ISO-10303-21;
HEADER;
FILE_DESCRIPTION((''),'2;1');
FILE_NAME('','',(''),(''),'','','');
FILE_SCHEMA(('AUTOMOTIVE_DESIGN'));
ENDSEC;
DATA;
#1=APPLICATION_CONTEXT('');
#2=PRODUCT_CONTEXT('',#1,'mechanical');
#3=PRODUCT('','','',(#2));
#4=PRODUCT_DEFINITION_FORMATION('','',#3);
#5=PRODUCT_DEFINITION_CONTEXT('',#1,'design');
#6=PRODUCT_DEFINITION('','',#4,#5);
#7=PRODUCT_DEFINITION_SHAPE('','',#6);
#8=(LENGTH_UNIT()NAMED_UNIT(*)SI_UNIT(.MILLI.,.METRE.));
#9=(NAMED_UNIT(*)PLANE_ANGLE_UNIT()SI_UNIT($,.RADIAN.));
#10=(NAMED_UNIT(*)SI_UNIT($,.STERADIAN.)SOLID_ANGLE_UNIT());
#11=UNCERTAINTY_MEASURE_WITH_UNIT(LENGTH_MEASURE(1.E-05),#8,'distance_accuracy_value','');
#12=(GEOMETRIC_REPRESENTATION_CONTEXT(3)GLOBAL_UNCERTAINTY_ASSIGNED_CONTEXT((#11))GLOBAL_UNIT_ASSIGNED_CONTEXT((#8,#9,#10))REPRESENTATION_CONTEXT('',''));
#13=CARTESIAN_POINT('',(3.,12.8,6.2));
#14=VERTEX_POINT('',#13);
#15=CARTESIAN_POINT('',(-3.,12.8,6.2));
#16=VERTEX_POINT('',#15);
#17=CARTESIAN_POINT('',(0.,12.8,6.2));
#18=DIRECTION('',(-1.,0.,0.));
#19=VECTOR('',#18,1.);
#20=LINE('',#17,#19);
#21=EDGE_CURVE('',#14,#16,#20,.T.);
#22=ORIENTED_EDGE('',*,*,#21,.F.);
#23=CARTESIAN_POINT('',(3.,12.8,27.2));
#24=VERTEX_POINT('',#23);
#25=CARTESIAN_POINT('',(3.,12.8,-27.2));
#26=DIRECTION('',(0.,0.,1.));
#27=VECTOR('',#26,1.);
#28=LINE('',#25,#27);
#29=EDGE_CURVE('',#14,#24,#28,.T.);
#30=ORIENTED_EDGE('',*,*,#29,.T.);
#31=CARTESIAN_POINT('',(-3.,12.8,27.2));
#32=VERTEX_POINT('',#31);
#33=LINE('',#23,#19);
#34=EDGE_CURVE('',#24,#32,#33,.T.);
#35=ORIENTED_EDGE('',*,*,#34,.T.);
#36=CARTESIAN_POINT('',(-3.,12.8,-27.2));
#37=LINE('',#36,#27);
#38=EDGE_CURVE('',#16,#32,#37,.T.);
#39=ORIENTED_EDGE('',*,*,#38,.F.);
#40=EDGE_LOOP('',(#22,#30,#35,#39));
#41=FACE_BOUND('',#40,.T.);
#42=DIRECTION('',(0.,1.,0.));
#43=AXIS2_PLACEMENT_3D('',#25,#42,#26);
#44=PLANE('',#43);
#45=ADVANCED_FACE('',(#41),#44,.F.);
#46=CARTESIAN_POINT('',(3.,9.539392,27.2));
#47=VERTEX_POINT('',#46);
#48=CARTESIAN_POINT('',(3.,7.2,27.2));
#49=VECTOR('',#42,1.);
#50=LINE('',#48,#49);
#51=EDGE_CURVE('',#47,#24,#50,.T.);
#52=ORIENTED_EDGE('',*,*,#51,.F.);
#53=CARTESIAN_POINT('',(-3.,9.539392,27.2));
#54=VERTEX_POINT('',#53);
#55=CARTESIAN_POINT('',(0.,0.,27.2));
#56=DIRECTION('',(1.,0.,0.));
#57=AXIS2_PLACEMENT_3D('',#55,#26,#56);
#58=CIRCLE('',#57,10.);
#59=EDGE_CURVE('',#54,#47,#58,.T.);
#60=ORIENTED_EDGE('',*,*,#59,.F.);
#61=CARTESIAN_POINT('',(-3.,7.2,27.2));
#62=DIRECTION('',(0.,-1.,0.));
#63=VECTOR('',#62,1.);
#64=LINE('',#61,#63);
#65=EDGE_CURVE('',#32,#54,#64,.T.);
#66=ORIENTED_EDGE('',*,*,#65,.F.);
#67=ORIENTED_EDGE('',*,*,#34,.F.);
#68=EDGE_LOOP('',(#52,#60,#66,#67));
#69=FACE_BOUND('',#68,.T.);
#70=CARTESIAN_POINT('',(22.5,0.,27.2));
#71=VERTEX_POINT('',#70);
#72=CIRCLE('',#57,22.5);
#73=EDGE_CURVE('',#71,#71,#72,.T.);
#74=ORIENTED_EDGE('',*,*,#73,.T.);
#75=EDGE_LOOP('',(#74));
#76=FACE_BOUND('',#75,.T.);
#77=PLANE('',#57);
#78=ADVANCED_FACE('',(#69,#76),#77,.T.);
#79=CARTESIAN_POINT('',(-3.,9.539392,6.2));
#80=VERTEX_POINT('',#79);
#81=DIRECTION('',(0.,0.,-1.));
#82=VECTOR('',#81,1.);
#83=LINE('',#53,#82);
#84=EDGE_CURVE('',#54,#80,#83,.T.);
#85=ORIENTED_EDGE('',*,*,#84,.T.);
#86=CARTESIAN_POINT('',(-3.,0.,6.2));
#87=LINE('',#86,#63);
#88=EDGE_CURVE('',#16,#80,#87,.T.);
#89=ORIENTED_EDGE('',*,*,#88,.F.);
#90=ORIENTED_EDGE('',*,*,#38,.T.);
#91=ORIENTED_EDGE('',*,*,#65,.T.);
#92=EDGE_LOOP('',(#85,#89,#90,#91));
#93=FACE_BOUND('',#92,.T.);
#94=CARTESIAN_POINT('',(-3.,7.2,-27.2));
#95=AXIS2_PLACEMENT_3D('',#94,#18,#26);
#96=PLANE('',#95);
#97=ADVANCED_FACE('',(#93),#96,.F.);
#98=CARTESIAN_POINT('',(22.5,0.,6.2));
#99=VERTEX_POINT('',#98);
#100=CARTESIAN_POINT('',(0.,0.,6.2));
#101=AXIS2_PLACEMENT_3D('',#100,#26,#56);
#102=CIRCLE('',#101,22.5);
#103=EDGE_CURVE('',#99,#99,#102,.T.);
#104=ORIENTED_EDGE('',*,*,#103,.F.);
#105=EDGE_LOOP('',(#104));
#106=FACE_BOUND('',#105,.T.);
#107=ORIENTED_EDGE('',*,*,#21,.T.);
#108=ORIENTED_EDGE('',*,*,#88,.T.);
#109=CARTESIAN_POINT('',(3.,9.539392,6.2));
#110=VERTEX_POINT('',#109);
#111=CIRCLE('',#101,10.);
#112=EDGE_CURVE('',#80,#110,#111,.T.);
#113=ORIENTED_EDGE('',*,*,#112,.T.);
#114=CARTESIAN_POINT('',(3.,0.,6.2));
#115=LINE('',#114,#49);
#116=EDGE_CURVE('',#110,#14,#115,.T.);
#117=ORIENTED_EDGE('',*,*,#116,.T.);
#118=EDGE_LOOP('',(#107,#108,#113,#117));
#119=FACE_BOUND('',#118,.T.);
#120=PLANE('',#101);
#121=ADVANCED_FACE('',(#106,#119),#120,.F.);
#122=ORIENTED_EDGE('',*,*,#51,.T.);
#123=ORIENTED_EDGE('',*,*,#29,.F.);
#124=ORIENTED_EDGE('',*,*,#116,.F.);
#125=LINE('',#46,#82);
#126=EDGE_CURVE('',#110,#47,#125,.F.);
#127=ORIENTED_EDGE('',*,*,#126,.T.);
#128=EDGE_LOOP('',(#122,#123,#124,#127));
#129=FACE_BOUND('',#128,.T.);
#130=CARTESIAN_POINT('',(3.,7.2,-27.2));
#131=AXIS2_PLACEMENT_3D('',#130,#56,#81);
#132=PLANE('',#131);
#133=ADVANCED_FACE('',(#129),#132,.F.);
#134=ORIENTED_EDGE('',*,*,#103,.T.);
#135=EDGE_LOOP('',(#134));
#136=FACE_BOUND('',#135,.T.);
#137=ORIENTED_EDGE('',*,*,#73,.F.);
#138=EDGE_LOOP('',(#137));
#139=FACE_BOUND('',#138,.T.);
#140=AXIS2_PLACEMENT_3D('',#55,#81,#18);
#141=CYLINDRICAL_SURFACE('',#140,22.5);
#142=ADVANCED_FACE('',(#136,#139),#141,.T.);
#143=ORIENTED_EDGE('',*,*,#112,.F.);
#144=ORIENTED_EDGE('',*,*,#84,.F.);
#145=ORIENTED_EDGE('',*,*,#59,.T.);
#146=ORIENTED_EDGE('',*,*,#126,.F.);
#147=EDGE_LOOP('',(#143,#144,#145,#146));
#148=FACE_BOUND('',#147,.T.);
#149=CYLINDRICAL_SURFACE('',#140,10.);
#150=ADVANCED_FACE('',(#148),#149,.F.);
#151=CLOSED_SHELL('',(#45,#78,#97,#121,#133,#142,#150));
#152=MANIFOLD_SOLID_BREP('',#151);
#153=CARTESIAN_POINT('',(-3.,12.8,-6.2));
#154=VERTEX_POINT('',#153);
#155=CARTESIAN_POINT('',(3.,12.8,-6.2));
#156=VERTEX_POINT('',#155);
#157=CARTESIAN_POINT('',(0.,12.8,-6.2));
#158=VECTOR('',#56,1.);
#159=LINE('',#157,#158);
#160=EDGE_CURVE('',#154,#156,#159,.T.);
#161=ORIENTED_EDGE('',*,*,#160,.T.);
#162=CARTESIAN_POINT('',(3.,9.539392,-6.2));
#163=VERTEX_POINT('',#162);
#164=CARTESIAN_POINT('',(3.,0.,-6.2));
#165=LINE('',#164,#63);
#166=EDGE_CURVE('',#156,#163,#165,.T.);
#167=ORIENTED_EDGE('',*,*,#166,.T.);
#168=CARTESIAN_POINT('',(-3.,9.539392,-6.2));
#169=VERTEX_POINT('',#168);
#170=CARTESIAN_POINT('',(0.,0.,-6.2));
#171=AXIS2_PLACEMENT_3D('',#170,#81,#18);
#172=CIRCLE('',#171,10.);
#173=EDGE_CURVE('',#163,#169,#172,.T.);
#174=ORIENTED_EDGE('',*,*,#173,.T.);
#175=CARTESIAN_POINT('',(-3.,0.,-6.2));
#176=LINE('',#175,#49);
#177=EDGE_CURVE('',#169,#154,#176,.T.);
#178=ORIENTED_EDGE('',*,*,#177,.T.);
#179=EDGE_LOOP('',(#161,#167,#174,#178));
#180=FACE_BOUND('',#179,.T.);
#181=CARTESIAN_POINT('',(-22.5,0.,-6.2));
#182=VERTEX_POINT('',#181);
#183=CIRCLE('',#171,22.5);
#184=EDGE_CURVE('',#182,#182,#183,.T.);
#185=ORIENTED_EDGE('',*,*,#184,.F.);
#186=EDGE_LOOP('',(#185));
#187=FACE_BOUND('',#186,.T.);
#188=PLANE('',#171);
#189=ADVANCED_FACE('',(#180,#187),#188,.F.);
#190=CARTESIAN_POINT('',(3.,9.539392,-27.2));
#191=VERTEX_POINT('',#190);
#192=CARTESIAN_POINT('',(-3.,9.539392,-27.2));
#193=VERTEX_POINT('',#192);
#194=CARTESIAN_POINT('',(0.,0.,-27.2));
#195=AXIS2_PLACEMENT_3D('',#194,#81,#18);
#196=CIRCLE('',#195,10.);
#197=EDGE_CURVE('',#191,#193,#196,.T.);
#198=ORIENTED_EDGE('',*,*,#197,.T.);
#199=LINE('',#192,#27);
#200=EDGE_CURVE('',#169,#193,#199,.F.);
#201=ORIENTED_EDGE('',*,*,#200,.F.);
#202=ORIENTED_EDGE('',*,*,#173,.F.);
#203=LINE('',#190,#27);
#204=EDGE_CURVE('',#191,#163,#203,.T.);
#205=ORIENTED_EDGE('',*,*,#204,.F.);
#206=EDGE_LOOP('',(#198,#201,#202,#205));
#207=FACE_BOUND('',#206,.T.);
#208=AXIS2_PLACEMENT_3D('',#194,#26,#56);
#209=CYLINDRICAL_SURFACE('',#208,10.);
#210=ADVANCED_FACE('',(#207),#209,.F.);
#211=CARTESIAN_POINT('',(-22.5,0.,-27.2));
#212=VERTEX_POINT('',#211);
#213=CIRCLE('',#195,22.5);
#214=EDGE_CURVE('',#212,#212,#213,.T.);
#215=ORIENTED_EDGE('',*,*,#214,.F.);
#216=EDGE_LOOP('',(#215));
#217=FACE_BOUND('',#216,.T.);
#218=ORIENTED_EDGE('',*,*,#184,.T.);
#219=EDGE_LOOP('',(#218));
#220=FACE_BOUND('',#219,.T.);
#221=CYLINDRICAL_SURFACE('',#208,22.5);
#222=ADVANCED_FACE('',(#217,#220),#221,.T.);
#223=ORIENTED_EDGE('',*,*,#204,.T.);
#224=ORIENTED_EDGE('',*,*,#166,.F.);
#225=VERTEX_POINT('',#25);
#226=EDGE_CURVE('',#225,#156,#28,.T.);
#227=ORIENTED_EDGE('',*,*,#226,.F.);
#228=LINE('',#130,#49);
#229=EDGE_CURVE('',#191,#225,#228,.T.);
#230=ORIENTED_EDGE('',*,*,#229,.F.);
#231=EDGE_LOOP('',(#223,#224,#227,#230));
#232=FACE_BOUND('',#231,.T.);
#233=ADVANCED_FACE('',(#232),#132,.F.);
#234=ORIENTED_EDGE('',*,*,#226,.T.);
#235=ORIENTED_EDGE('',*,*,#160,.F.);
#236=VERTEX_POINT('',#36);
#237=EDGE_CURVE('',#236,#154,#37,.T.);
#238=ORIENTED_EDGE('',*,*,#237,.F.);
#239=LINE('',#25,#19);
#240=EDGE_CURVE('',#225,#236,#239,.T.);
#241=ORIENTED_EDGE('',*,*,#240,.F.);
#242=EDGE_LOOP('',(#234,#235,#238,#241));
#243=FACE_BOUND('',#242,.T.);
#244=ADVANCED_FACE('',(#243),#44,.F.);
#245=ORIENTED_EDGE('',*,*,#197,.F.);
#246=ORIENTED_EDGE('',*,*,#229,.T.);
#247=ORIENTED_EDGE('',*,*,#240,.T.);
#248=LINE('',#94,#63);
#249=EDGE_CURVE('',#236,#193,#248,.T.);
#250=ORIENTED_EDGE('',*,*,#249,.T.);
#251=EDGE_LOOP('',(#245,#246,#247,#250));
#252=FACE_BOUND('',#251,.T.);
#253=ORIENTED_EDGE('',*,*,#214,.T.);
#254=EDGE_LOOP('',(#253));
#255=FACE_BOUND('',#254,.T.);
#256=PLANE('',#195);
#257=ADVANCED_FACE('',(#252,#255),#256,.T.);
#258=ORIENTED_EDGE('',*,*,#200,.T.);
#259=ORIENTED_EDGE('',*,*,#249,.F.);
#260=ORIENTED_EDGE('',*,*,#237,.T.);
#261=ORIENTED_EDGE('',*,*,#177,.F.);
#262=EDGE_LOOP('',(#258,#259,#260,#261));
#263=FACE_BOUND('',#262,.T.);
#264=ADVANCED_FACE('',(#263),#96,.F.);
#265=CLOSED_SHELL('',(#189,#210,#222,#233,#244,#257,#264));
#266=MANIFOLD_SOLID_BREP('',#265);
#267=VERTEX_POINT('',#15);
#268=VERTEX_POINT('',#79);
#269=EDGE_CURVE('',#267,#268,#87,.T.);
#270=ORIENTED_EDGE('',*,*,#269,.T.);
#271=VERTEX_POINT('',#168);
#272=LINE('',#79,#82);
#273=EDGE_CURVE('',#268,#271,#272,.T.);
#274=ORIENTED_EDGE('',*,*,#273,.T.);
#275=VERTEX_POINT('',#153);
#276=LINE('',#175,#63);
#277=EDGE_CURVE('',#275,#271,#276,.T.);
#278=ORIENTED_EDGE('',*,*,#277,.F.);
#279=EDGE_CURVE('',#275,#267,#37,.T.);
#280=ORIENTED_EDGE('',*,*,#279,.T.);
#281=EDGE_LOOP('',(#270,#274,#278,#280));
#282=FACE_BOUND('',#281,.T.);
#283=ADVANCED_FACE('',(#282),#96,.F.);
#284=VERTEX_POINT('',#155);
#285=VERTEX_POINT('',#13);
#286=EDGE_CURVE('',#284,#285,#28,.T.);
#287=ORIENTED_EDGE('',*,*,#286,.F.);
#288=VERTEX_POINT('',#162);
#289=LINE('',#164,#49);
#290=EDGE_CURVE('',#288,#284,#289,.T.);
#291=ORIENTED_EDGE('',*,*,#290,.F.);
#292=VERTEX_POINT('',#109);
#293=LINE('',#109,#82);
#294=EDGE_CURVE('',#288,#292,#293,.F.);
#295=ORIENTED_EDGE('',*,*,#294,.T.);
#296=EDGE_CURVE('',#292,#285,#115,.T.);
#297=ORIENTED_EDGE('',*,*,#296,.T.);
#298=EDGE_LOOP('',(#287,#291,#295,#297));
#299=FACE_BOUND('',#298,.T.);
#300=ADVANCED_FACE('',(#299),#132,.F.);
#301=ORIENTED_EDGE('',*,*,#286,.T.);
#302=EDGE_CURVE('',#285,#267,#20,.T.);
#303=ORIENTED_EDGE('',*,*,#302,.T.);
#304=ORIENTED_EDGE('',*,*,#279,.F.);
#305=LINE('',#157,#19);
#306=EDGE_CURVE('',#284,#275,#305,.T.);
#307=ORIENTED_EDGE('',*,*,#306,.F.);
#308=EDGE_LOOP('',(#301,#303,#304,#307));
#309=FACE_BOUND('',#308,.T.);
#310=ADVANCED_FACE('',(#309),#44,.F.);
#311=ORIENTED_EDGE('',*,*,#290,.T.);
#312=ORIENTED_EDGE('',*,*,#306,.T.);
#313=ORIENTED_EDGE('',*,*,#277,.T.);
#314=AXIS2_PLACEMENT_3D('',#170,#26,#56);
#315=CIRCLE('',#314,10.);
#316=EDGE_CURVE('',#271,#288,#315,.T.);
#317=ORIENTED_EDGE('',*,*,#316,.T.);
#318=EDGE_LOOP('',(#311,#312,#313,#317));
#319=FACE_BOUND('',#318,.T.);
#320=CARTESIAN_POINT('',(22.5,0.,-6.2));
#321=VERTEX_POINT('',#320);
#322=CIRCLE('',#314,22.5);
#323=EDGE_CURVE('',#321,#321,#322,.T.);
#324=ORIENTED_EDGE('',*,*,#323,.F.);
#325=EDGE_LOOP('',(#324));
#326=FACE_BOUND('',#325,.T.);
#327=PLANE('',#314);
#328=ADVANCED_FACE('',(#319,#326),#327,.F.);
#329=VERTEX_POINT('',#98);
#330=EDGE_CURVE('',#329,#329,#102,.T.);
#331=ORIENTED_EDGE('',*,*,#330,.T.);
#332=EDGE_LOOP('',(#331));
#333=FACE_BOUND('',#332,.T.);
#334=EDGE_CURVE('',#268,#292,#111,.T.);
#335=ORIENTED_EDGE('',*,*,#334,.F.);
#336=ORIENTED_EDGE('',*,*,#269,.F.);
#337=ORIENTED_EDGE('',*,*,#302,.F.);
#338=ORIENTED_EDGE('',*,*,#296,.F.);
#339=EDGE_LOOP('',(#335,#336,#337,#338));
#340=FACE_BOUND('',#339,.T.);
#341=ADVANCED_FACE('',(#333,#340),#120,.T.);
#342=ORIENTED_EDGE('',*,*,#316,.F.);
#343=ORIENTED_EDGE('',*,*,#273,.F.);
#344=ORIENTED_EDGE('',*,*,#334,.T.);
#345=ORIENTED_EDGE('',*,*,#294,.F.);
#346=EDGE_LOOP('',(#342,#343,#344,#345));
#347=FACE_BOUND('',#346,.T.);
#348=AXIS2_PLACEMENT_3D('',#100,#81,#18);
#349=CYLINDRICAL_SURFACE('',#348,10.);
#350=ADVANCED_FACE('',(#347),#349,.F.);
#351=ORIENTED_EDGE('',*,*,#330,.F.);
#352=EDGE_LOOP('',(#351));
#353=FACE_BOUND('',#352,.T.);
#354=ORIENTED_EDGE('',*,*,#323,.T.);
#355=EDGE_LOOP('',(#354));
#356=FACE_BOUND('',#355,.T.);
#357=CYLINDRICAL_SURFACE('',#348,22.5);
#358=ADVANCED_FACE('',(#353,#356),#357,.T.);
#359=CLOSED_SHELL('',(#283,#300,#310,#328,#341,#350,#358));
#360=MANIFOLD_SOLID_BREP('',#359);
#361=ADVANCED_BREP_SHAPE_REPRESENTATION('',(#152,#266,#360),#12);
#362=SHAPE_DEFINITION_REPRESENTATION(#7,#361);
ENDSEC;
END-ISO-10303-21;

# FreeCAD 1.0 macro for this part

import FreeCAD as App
import Part
import Sketcher
from FreeCAD import Vector

doc = App.newDocument("Part")
body = doc.addObject("PartDesign::Body", "Body")

# Sketch on XY plane
sketch1 = body.newObject("Sketcher::SketchObject", "Sketch")
sketch1.AttachmentSupport = (doc.getObject("XY_Plane"), [""])
sketch1.MapMode = "FlatFace"
sketch1.addGeometry(Part.Circle(Vector(0, 0, 0), Vector(0, 0, 1), 22), False)
sketch1.addGeometry(Part.Circle(Vector(0, 0, 0), Vector(0, 0, 1), 10), False)
sketch1.addConstraint(Sketcher.Constraint("Coincident", 0, 3, -1, 1))
sketch1.addConstraint(Sketcher.Constraint("Coincident", 1, 3, -1, 1))
sketch1.addConstraint(Sketcher.Constraint("Diameter", 0, 45.0))
sketch1.addConstraint(Sketcher.Constraint("Diameter", 1, 20.0))
pad1 = body.newObject("PartDesign::Pad", "Pad")
pad1.Profile = sketch1
pad1.Length = 12.4
pad1.Midplane = True
body2 = doc.addObject("PartDesign::Body", "Body001")

# Sketch on XY plane
sketch2 = body2.newObject("Sketcher::SketchObject", "Sketch001")
sketch2.AttachmentSupport = (doc.getObject("XY_Plane001"), [""])
sketch2.MapMode = "FlatFace"
sketch2.AttachmentOffset = App.Placement(Vector(0, 0, 6.2), App.Rotation())
sketch2.addGeometry(Part.Circle(Vector(0, 0, 0), Vector(0, 0, 1), 22), False)
sketch2.addGeometry(Part.Circle(Vector(0, 0, 0), Vector(0, 0, 1), 10), False)
sketch2.addConstraint(Sketcher.Constraint("Coincident", 0, 3, -1, 1))
sketch2.addConstraint(Sketcher.Constraint("Coincident", 1, 3, -1, 1))
sketch2.addConstraint(Sketcher.Constraint("Diameter", 0, 45.0))
sketch2.addConstraint(Sketcher.Constraint("Diameter", 1, 20.0))
pad2 = body2.newObject("PartDesign::Pad", "Pad001")
pad2.Profile = sketch2
pad2.Length = 21
body3 = doc.addObject("PartDesign::Body", "Body002")

# Sketch on XY plane
sketch3 = body3.newObject("Sketcher::SketchObject", "Sketch002")
sketch3.AttachmentSupport = (doc.getObject("XY_Plane002"), [""])
sketch3.MapMode = "FlatFace"
sketch3.AttachmentOffset = App.Placement(Vector(0, 0, -6.2), App.Rotation())
sketch3.addGeometry(Part.Circle(Vector(0, 0, 0), Vector(0, 0, 1), 22), False)
sketch3.addGeometry(Part.Circle(Vector(0, 0, 0), Vector(0, 0, 1), 10), False)
sketch3.addConstraint(Sketcher.Constraint("Coincident", 0, 3, -1, 1))
sketch3.addConstraint(Sketcher.Constraint("Coincident", 1, 3, -1, 1))
sketch3.addConstraint(Sketcher.Constraint("Diameter", 0, 45.0))
sketch3.addConstraint(Sketcher.Constraint("Diameter", 1, 20.0))
pad3 = body3.newObject("PartDesign::Pad", "Pad002")
pad3.Profile = sketch3
pad3.Length = 21
pad3.Reversed = True
body4 = doc.addObject("PartDesign::Body", "Body003")

# Sketch on XY plane
sketch4 = body4.newObject("Sketcher::SketchObject", "Sketch003")
sketch4.AttachmentSupport = (doc.getObject("XY_Plane003"), [""])
sketch4.MapMode = "FlatFace"
sketch4.AttachmentOffset = App.Placement(Vector(0, 0, 27.2), App.Rotation())
sketch4.addGeometry(Part.LineSegment(Vector(-3, 13, 0), Vector(-3, 7, 0)), False)
sketch4.addGeometry(Part.LineSegment(Vector(-3, 7, 0), Vector(3, 7, 0)), False)
sketch4.addGeometry(Part.LineSegment(Vector(3, 7, 0), Vector(3, 13, 0)), False)
sketch4.addGeometry(Part.LineSegment(Vector(3, 13, 0), Vector(-3, 13, 0)), False)
sketch4.addConstraint(Sketcher.Constraint("Coincident", 0, 2, 1, 1))
sketch4.addConstraint(Sketcher.Constraint("Coincident", 1, 2, 2, 1))
sketch4.addConstraint(Sketcher.Constraint("Coincident", 2, 2, 3, 1))
sketch4.addConstraint(Sketcher.Constraint("Coincident", 3, 2, 0, 1))
sketch4.addConstraint(Sketcher.Constraint("Vertical", 0))
sketch4.addConstraint(Sketcher.Constraint("Horizontal", 1))
sketch4.addConstraint(Sketcher.Constraint("Vertical", 2))
sketch4.addConstraint(Sketcher.Constraint("Horizontal", 3))
sketch4.addConstraint(Sketcher.Constraint("DistanceX", 1, 1, 1, 2, 6.0))
sketch4.addConstraint(Sketcher.Constraint("DistanceY", 0, 2, 0, 1, 5.6))
sketch4.addConstraint(Sketcher.Constraint("DistanceX", 0, 2, -1, 1, 3.0))
sketch4.addConstraint(Sketcher.Constraint("DistanceY", -1, 1, 0, 2, 7.2))
pad4 = body4.newObject("PartDesign::Pad", "Pad003")
pad4.Profile = sketch4
pad4.Length = 55.4
pad4.Reversed = True
doc.recompute()

body5 = doc.addObject("PartDesign::Body", "Body004")
body5.BaseFeature = body4
boolean = body.newObject("PartDesign::Boolean", "Boolean")
boolean.Type = "Cut"
boolean.addObjects([body5])
doc.recompute()

body6 = doc.addObject("PartDesign::Body", "Body005")
body6.BaseFeature = body4
boolean2 = body2.newObject("PartDesign::Boolean", "Boolean001")
boolean2.Type = "Cut"
boolean2.addObjects([body6])
doc.recompute()

boolean3 = body3.newObject("PartDesign::Boolean", "Boolean002")
boolean3.Type = "Cut"
boolean3.addObjects([body4])

doc.recompute()
